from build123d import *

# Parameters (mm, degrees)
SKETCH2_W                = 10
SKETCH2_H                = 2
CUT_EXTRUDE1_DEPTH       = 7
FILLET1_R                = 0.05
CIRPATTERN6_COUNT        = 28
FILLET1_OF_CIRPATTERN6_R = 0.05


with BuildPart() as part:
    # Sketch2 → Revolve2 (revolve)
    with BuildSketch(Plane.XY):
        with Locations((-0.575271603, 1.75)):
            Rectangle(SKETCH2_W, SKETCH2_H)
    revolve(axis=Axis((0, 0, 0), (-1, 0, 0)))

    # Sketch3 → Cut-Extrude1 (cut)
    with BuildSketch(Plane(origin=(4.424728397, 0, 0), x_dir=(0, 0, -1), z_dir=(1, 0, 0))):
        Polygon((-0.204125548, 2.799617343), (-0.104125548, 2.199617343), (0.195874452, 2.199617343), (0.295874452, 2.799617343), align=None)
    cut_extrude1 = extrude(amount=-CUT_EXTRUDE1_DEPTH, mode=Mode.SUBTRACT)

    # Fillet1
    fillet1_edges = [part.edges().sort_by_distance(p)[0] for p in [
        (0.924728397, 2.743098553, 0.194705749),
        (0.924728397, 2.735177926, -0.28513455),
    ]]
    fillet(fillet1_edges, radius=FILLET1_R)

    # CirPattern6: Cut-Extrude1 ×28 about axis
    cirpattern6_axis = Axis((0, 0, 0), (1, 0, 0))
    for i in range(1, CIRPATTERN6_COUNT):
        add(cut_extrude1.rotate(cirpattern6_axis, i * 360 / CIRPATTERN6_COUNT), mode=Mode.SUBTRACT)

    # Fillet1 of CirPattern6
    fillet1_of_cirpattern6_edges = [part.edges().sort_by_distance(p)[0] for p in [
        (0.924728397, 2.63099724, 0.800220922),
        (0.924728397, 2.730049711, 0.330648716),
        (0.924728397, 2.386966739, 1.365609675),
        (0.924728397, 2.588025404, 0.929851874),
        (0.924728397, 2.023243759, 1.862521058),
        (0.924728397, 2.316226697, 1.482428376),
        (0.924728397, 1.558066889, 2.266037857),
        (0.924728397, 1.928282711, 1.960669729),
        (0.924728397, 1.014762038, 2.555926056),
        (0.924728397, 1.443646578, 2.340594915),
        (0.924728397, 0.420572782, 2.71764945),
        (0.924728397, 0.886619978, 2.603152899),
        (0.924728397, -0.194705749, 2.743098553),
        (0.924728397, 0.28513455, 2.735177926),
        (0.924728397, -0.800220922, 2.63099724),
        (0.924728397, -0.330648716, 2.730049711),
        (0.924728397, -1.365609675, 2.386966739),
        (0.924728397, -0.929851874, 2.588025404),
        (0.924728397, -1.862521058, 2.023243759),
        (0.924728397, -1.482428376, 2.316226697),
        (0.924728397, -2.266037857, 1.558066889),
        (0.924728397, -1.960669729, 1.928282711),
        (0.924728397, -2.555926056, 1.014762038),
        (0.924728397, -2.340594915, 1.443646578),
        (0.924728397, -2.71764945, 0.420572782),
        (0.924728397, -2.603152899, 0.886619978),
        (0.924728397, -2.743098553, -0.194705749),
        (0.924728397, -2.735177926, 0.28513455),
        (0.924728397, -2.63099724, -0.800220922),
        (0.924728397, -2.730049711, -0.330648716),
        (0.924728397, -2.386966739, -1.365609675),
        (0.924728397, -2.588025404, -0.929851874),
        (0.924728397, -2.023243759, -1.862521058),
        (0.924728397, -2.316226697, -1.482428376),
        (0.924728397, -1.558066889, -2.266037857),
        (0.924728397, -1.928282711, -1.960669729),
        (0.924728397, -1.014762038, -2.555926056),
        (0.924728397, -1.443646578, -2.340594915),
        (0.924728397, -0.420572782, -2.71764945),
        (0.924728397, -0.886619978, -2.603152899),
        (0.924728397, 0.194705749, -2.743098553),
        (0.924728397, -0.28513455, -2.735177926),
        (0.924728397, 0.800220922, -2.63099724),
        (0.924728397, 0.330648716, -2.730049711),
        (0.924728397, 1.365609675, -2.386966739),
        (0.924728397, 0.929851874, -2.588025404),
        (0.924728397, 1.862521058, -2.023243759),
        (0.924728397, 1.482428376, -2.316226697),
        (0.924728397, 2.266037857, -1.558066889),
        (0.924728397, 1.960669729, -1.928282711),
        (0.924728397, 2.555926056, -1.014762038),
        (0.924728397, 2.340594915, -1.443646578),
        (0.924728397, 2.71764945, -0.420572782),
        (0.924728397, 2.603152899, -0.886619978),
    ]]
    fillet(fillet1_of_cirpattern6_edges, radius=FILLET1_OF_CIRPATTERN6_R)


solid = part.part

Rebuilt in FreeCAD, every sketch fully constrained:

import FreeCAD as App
import Part
import Sketcher


def edges_at(feature, points):
    """Names of the edges that pass closest to the given points."""
    edges = feature.Shape.Edges
    near = lambda p: min(range(len(edges)), key=lambda i: edges[i].distToShape(Part.Vertex(*p))[0])
    return sorted({f"Edge{near(p) + 1}" for p in points})

doc = App.newDocument("Part")
body = doc.addObject("PartDesign::Body", "Body")

# Sketch on XY plane
sketch1 = body.newObject("Sketcher::SketchObject", "Sketch")
sketch1.AttachmentSupport = (doc.getObject("XY_Plane"), [""])
sketch1.MapMode = "FlatFace"
sketch1.addGeometry([
    Part.LineSegment(App.Vector(-5.6, 2.8, 0), App.Vector(-5.6, 0.8, 0)),
    Part.LineSegment(App.Vector(-5.6, 0.8, 0), App.Vector(4.4, 0.8, 0)),
    Part.LineSegment(App.Vector(4.4, 0.8, 0), App.Vector(4.4, 2.8, 0)),
    Part.LineSegment(App.Vector(4.4, 2.8, 0), App.Vector(-5.6, 2.8, 0)),
], False)
sketch1.addConstraint([
    Sketcher.Constraint("Coincident", 0, 2, 1, 1),
    Sketcher.Constraint("Coincident", 1, 2, 2, 1),
    Sketcher.Constraint("Coincident", 2, 2, 3, 1),
    Sketcher.Constraint("Coincident", 3, 2, 0, 1),
    Sketcher.Constraint("Vertical", 0),
    Sketcher.Constraint("Horizontal", 1),
    Sketcher.Constraint("Vertical", 2),
    Sketcher.Constraint("Horizontal", 3),
    Sketcher.Constraint("DistanceX", 1, 1, 1, 2, 10.0),
    Sketcher.Constraint("DistanceY", 0, 2, 0, 1, 2.0),
    Sketcher.Constraint("DistanceY", -1, 1, 0, 2, 0.75),
    Sketcher.Constraint("DistanceX", 0, 2, -1, 1, 5.575272),
])
revolution = body.newObject("PartDesign::Revolution", "Revolution")
revolution.Profile = sketch1
revolution.ReferenceAxis = (sketch1, ["H_Axis"])
revolution.Angle = 360

# Sketch on YZ plane
sketch2 = body.newObject("Sketcher::SketchObject", "Sketch001")
sketch2.AttachmentSupport = (doc.getObject("YZ_Plane"), [""])
sketch2.MapMode = "FlatFace"
sketch2.AttachmentOffset = App.Placement(App.Vector(0, 0, 4.424728), App.Rotation())
sketch2.addGeometry([
    Part.LineSegment(App.Vector(2.8, 0.2, 0), App.Vector(2.2, 0.1, 0)),
    Part.LineSegment(App.Vector(2.2, 0.1, 0), App.Vector(2.2, -0.2, 0)),
    Part.LineSegment(App.Vector(2.2, -0.2, 0), App.Vector(2.8, -0.3, 0)),
    Part.LineSegment(App.Vector(2.8, -0.3, 0), App.Vector(2.8, 0.2, 0)),
], False)
sketch2.addConstraint([
    Sketcher.Constraint("Coincident", 0, 2, 1, 1),
    Sketcher.Constraint("Coincident", 1, 2, 2, 1),
    Sketcher.Constraint("Coincident", 2, 2, 3, 1),
    Sketcher.Constraint("Coincident", 3, 2, 0, 1),
    Sketcher.Constraint("Vertical", 1),
    Sketcher.Constraint("Vertical", 3),
    Sketcher.Constraint("Equal", 0, 2),
    Sketcher.Constraint("DistanceY", 1, 2, 1, 1, 0.3),
    Sketcher.Constraint("DistanceY", 3, 1, 3, 2, 0.5),
    Sketcher.Constraint("DistanceX", 1, 2, 2, 2, 0.6),
    Sketcher.Constraint("DistanceX", -1, 1, 0, 2, 2.199617),
    Sketcher.Constraint("DistanceY", -1, 1, 0, 2, 0.104126),
])
pocket1 = body.newObject("PartDesign::Pocket", "Pocket")
pocket1.Profile = sketch2
pocket1.Length = 7
doc.recompute()

fillet = body.newObject("PartDesign::Fillet", "Fillet")
fillet.Base = (pocket1, edges_at(pocket1, [(0.925, 2.743, 0.195), (0.925, 2.735, -0.285)]))
fillet.Radius = 0.05
doc.recompute()

polarpattern = body.newObject("PartDesign::PolarPattern", "PolarPattern")
polarpattern.Originals = [pocket1]
polarpattern.Axis = (doc.getObject("X_Axis"), [""])
polarpattern.Angle = 360
polarpattern.Occurrences = 28
body.Tip = polarpattern
doc.recompute()

fillet2 = body.newObject("PartDesign::Fillet", "Fillet001")
fillet2.Base = (polarpattern, edges_at(polarpattern, [
    (0.925, 2.631, 0.8),
    (0.925, 2.73, 0.331),
    (0.925, 2.387, 1.366),
    (0.925, 2.588, 0.93),
    (0.925, 2.023, 1.863),
    (0.925, 2.316, 1.482),
    (0.925, 1.558, 2.266),
    (0.925, 1.928, 1.961),
    (0.925, 1.015, 2.556),
    (0.925, 1.444, 2.341),
    (0.925, 0.421, 2.718),
    (0.925, 0.887, 2.603),
    (0.925, -0.195, 2.743),
    (0.925, 0.285, 2.735),
    (0.925, -0.8, 2.631),
    (0.925, -0.331, 2.73),
    (0.925, -1.366, 2.387),
    (0.925, -0.93, 2.588),
    (0.925, -1.863, 2.023),
    (0.925, -1.482, 2.316),
    (0.925, -2.266, 1.558),
    (0.925, -1.961, 1.928),
    (0.925, -2.556, 1.015),
    (0.925, -2.341, 1.444),
    (0.925, -2.718, 0.421),
    (0.925, -2.603, 0.887),
    (0.925, -2.743, -0.195),
    (0.925, -2.735, 0.285),
    (0.925, -2.631, -0.8),
    (0.925, -2.73, -0.331),
    (0.925, -2.387, -1.366),
    (0.925, -2.588, -0.93),
    (0.925, -2.023, -1.863),
    (0.925, -2.316, -1.482),
    (0.925, -1.558, -2.266),
    (0.925, -1.928, -1.961),
    (0.925, -1.015, -2.556),
    (0.925, -1.444, -2.341),
    (0.925, -0.421, -2.718),
    (0.925, -0.887, -2.603),
    (0.925, 0.195, -2.743),
    (0.925, -0.285, -2.735),
    (0.925, 0.8, -2.631),
    (0.925, 0.331, -2.73),
    (0.925, 1.366, -2.387),
    (0.925, 0.93, -2.588),
    (0.925, 1.863, -2.023),
    (0.925, 1.482, -2.316),
    (0.925, 2.266, -1.558),
    (0.925, 1.961, -1.928),
    (0.925, 2.556, -1.015),
    (0.925, 2.341, -1.444),
    (0.925, 2.718, -0.421),
    (0.925, 2.603, -0.887),
]))
fillet2.Radius = 0.05

doc.recompute()
